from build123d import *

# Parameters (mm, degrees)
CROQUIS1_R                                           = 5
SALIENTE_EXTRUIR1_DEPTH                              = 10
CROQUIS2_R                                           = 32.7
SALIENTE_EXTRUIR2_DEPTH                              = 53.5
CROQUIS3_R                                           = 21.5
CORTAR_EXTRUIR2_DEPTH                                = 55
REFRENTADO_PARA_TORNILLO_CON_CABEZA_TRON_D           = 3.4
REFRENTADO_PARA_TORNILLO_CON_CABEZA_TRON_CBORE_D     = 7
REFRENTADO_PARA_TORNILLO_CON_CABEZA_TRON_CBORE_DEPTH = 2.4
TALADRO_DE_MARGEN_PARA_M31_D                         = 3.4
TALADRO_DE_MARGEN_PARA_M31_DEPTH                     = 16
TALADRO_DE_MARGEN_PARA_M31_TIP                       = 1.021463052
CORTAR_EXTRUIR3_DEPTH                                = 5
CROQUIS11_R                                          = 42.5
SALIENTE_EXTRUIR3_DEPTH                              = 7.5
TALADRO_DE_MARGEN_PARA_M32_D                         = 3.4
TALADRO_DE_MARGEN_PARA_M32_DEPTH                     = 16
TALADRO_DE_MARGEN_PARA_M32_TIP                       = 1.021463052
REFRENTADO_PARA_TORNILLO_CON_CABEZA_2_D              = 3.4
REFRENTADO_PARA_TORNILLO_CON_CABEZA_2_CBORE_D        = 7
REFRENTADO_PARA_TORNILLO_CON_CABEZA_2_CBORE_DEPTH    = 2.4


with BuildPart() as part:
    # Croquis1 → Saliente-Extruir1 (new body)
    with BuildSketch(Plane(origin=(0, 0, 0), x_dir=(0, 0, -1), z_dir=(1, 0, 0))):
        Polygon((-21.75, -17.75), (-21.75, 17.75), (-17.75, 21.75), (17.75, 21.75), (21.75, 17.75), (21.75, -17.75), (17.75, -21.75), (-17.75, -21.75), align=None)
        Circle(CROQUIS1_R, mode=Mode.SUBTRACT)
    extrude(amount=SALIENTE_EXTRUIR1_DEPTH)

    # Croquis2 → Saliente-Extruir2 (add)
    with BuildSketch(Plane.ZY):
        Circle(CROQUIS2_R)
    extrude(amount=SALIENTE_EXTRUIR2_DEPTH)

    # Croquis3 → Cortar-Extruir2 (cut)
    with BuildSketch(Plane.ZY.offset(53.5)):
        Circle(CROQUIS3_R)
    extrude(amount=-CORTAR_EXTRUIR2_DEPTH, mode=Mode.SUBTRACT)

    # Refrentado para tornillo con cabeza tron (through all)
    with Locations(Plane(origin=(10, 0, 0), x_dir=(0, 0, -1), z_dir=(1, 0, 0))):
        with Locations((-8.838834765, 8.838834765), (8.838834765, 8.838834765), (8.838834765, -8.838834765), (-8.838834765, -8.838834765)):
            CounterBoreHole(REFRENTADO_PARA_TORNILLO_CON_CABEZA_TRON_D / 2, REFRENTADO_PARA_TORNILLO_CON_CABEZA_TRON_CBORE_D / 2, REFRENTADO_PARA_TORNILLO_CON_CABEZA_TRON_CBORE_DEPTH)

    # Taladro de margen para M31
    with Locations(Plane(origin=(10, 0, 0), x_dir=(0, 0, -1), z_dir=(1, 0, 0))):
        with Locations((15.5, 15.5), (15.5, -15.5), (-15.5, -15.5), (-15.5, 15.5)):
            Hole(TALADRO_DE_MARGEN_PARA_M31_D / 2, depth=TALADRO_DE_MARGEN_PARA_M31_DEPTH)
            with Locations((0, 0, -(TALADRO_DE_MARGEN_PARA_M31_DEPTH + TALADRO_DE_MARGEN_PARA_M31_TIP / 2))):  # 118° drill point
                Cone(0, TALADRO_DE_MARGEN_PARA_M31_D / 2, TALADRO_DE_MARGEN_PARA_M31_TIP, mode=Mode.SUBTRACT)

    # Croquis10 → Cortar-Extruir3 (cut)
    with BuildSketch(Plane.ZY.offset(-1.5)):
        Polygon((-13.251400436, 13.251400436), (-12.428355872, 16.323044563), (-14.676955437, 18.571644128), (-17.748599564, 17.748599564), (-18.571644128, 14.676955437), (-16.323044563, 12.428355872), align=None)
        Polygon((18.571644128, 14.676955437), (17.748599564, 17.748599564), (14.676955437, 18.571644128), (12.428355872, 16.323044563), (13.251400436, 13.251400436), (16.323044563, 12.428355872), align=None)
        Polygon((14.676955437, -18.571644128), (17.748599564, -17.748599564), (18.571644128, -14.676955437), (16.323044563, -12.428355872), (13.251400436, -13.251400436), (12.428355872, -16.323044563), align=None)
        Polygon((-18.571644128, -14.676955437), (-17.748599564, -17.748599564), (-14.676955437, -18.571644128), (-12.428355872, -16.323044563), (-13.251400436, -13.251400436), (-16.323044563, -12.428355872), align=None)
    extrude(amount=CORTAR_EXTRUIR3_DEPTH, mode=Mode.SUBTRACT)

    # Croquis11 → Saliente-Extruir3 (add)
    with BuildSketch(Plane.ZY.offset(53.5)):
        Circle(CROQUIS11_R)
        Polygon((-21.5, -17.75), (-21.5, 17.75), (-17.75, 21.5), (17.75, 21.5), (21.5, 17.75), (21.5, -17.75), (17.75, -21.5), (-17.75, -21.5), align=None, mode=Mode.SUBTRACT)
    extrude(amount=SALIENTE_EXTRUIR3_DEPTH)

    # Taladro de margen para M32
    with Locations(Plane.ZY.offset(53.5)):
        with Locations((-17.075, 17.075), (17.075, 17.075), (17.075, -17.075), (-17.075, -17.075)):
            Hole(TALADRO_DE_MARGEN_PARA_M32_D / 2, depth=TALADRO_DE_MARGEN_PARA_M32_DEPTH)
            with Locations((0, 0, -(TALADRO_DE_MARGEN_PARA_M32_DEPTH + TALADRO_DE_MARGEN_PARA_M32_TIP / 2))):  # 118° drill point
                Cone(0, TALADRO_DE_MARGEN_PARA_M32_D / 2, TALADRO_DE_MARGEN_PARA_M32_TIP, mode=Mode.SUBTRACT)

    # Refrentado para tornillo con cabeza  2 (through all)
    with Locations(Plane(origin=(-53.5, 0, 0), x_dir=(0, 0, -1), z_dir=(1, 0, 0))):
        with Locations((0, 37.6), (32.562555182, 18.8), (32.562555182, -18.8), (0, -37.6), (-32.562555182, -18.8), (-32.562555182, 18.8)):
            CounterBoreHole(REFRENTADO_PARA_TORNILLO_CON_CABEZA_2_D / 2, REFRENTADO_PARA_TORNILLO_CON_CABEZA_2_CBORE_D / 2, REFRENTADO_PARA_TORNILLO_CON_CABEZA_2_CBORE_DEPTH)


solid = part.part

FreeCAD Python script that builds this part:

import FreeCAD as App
import Part
import Sketcher
Q = App.Units.Quantity


def add_polygon(sketch, points):
    """Adds a closed chain of lines whose ends are joined by coincident constraints."""
    first, n = sketch.GeometryCount, len(points)
    for a, b in zip(points, points[1:] + points[:1]):
        sketch.addGeometry(Part.LineSegment(App.Vector(*a, 0), App.Vector(*b, 0)), False)
    for i in range(n):
        sketch.addConstraint(Sketcher.Constraint("Coincident", first + i, 2, first + (i + 1) % n, 1))

doc = App.newDocument("Part")
body = doc.addObject("PartDesign::Body", "Body")

sketch1 = doc.addObject("Sketcher::SketchObject", "Sketch")
body.addObject(sketch1)
sketch1.AttachmentSupport = (doc.YZ_Plane, [""])
sketch1.MapMode = "FlatFace"
add_polygon(sketch1, [(17.75, 21.75), (-17.75, 21.75), (-21.75, 17.75), (-21.75, -17.75), (-17.75, -21.75), (17.75, -21.75), (21.75, -17.75), (21.75, 17.75)])
sketch1.addGeometry(Part.Circle(App.Vector(0, 0, 0), App.Vector(0, 0, 1), 5), False)
sketch1.addConstraint([
    Sketcher.Constraint("Horizontal", 0),
    Sketcher.Constraint("Vertical", 2),
    Sketcher.Constraint("Horizontal", 4),
    Sketcher.Constraint("Vertical", 6),
    Sketcher.Constraint("Coincident", 8, 3, -1, 1),
    Sketcher.Constraint("Symmetric", 0, 2, 4, 2, -1, 1),
    Sketcher.Constraint("Symmetric", 1, 2, 5, 2, -1, 1),
    Sketcher.Constraint("Perpendicular", 1, 3),
    Sketcher.Constraint("Perpendicular", 5, 7),
    Sketcher.Constraint("Horizontal", 2, 2, 5, 2),
    Sketcher.Constraint("Horizontal", 1, 2, 6, 2),
    Sketcher.Constraint("Vertical", 0, 2, 3, 2),
    Sketcher.Constraint("Equal", 4, 2),
    Sketcher.Constraint("Diameter", 8, Q("10 mm")),
    Sketcher.Constraint("DistanceX", 0, 2, 0, 1, Q("35.5 mm")),
    Sketcher.Constraint("DistanceX", 1, 2, 0, 2, Q("4 mm")),
])
pad1 = doc.addObject("PartDesign::Pad", "Pad")
body.addObject(pad1)
pad1.Profile = sketch1
pad1.Length = 10

sketch2 = doc.addObject("Sketcher::SketchObject", "Sketch001")
body.addObject(sketch2)
sketch2.AttachmentSupport = (doc.YZ_Plane, [""])
sketch2.MapMode = "FlatFace"
sketch2.addGeometry(Part.Circle(App.Vector(0, 0, 0), App.Vector(0, 0, 1), 32.7), False)
sketch2.addConstraint([
    Sketcher.Constraint("Coincident", 0, 3, -1, 1),
    Sketcher.Constraint("Diameter", 0, Q("65.4 mm")),
])
pad2 = doc.addObject("PartDesign::Pad", "Pad001")
body.addObject(pad2)
pad2.Profile = sketch2
pad2.Length = 53.5
pad2.Reversed = True

sketch3 = doc.addObject("Sketcher::SketchObject", "Sketch002")
body.addObject(sketch3)
sketch3.AttachmentSupport = (doc.YZ_Plane, [""])
sketch3.MapMode = "FlatFace"
sketch3.AttachmentOffset = App.Placement(App.Vector(0, 0, -53.5), App.Rotation())
sketch3.addGeometry(Part.Circle(App.Vector(0, 0, 0), App.Vector(0, 0, 1), 21.5), False)
sketch3.addConstraint([
    Sketcher.Constraint("Coincident", 0, 3, -1, 1),
    Sketcher.Constraint("Diameter", 0, Q("43 mm")),
])
pocket1 = doc.addObject("PartDesign::Pocket", "Pocket")
body.addObject(pocket1)
pocket1.Profile = sketch3
pocket1.Length = 55
pocket1.Reversed = True

sketch4 = doc.addObject("Sketcher::SketchObject", "Sketch003")
body.addObject(sketch4)
sketch4.AttachmentSupport = (doc.YZ_Plane, [""])
sketch4.MapMode = "FlatFace"
sketch4.AttachmentOffset = App.Placement(App.Vector(0, 0, 10), App.Rotation())
sketch4.addGeometry([
    Part.Circle(App.Vector(8.838835, 8.838835, 0), App.Vector(0, 0, 1), 1.7),
    Part.Circle(App.Vector(8.838835, -8.838835, 0), App.Vector(0, 0, 1), 1.7),
    Part.Circle(App.Vector(-8.838835, -8.838835, 0), App.Vector(0, 0, 1), 1.7),
    Part.Circle(App.Vector(-8.838835, 8.838835, 0), App.Vector(0, 0, 1), 1.7),
], False)
sketch4.addConstraint([
    Sketcher.Constraint("Equal", 0, 1),
    Sketcher.Constraint("Equal", 1, 2),
    Sketcher.Constraint("Equal", 2, 3),
    Sketcher.Constraint("Symmetric", 0, 3, 2, 3, -1, 1),
    Sketcher.Constraint("Symmetric", 1, 3, 3, 3, -1, 1),
    Sketcher.Constraint("Symmetric", 1, 3, 2, 3, -2),
    Sketcher.Constraint("Diameter", 0, Q("3.4 mm")),
    Sketcher.Constraint("DistanceY", 1, 3, 0, 3, Q("17.67767 mm")),
    Sketcher.Constraint("DistanceX", 2, 3, 1, 3, Q("17.67767 mm")),
])
doc.recompute()
hole = doc.addObject("PartDesign::Hole", "Hole")
body.addObject(hole)
hole.Profile = sketch4
hole.ThreadType = "None"
hole.Diameter = 3.4
hole.DepthType = "ThroughAll"
hole.HoleCutType = "Counterbore"
hole.HoleCutDiameter = 7
hole.HoleCutDepth = 2.4

sketch5 = doc.addObject("Sketcher::SketchObject", "Sketch004")
body.addObject(sketch5)
sketch5.AttachmentSupport = (doc.YZ_Plane, [""])
sketch5.MapMode = "FlatFace"
sketch5.AttachmentOffset = App.Placement(App.Vector(0, 0, 10), App.Rotation())
sketch5.addGeometry([
    Part.Circle(App.Vector(15.5, -15.5, 0), App.Vector(0, 0, 1), 1.7),
    Part.Circle(App.Vector(-15.5, -15.5, 0), App.Vector(0, 0, 1), 1.7),
    Part.Circle(App.Vector(-15.5, 15.5, 0), App.Vector(0, 0, 1), 1.7),
    Part.Circle(App.Vector(15.5, 15.5, 0), App.Vector(0, 0, 1), 1.7),
], False)
sketch5.addConstraint([
    Sketcher.Constraint("Equal", 0, 1),
    Sketcher.Constraint("Equal", 1, 2),
    Sketcher.Constraint("Equal", 2, 3),
    Sketcher.Constraint("Symmetric", 0, 3, 2, 3, -1, 1),
    Sketcher.Constraint("Symmetric", 1, 3, 3, 3, -1, 1),
    Sketcher.Constraint("Symmetric", 0, 3, 1, 3, -2),
    Sketcher.Constraint("Diameter", 0, Q("3.4 mm")),
    Sketcher.Constraint("DistanceX", 1, 3, 0, 3, Q("31 mm")),
    Sketcher.Constraint("DistanceY", 1, 3, 2, 3, Q("31 mm")),
])
doc.recompute()
hole2 = doc.addObject("PartDesign::Hole", "Hole001")
body.addObject(hole2)
hole2.Profile = sketch5
hole2.ThreadType = "None"
hole2.Diameter = 3.4
hole2.DepthType = "Dimension"
hole2.Depth = 16
hole2.DrillPoint = "Angled"
hole2.DrillPointAngle = 118

sketch6 = doc.addObject("Sketcher::SketchObject", "Sketch005")
body.addObject(sketch6)
sketch6.AttachmentSupport = (doc.YZ_Plane, [""])
sketch6.MapMode = "FlatFace"
sketch6.AttachmentOffset = App.Placement(App.Vector(0, 0, 1.5), App.Rotation())
add_polygon(sketch6, [(13.2514, -13.2514), (16.323045, -12.428356), (18.571644, -14.676955), (17.7486, -17.7486), (14.676955, -18.571644), (12.428356, -16.323045)])
add_polygon(sketch6, [(14.676955, 18.571644), (17.7486, 17.7486), (18.571644, 14.676955), (16.323045, 12.428356), (13.2514, 13.2514), (12.428356, 16.323045)])
add_polygon(sketch6, [(-18.571644, 14.676955), (-17.7486, 17.7486), (-14.676955, 18.571644), (-12.428356, 16.323045), (-13.2514, 13.2514), (-16.323045, 12.428356)])
add_polygon(sketch6, [(-14.676955, -18.571644), (-17.7486, -17.7486), (-18.571644, -14.676955), (-16.323045, -12.428356), (-13.2514, -13.2514), (-12.428356, -16.323045)])
sketch6.addConstraint([
    Sketcher.Constraint("Symmetric", 2, 2, 12, 2, -1, 1),
    Sketcher.Constraint("Symmetric", 3, 2, 13, 2, -1, 1),
    Sketcher.Constraint("Symmetric", 4, 2, 14, 2, -1, 1),
    Sketcher.Constraint("Symmetric", 5, 2, 15, 2, -1, 1),
    Sketcher.Constraint("Symmetric", 0, 2, 16, 2, -1, 1),
    Sketcher.Constraint("Symmetric", 1, 2, 17, 2, -1, 1),
    Sketcher.Constraint("Symmetric", 6, 2, 18, 2, -1, 1),
    Sketcher.Constraint("Symmetric", 7, 2, 19, 2, -1, 1),
    Sketcher.Constraint("Symmetric", 8, 2, 20, 2, -1, 1),
    Sketcher.Constraint("Symmetric", 9, 2, 21, 2, -1, 1),
    Sketcher.Constraint("Symmetric", 10, 2, 22, 2, -1, 1),
    Sketcher.Constraint("Symmetric", 11, 2, 23, 2, -1, 1),
    Sketcher.Constraint("Symmetric", 6, 2, 12, 2, -2),
    Sketcher.Constraint("Symmetric", 11, 2, 13, 2, -2),
    Sketcher.Constraint("Symmetric", 10, 2, 14, 2, -2),
    Sketcher.Constraint("Symmetric", 9, 2, 15, 2, -2),
    Sketcher.Constraint("Symmetric", 8, 2, 16, 2, -2),
    Sketcher.Constraint("Symmetric", 7, 2, 17, 2, -2),
    Sketcher.Constraint("Parallel", 0, 3),
    Sketcher.Constraint("Parallel", 1, 4),
    Sketcher.Constraint("Parallel", 2, 5),
    Sketcher.Constraint("Perpendicular", 5, 6),
    Sketcher.Constraint("Perpendicular", 4, 8),
    Sketcher.Constraint("Equal", 0, 1),
    Sketcher.Constraint("Equal", 1, 2),
    Sketcher.Constraint("Equal", 2, 3),
    Sketcher.Constraint("Angle", 0, Q("15 deg")),
    Sketcher.Constraint("DistanceY", 5, 2, 6, 2, Q("31 mm")),
    Sketcher.Constraint("DistanceX", 12, 2, 9, 2, Q("31 mm")),
    Sketcher.Constraint("Distance", 0, Q("3.18 mm")),
])
pocket2 = doc.addObject("PartDesign::Pocket", "Pocket001")
body.addObject(pocket2)
pocket2.Profile = sketch6
pocket2.Length = 5

sketch7 = doc.addObject("Sketcher::SketchObject", "Sketch006")
body.addObject(sketch7)
sketch7.AttachmentSupport = (doc.YZ_Plane, [""])
sketch7.MapMode = "FlatFace"
sketch7.AttachmentOffset = App.Placement(App.Vector(0, 0, -53.5), App.Rotation())
sketch7.addGeometry(Part.Circle(App.Vector(0, 0, 0), App.Vector(0, 0, 1), 42.5), False)
add_polygon(sketch7, [(-21.5, -17.75), (-17.75, -21.5), (17.75, -21.5), (21.5, -17.75), (21.5, 17.75), (17.75, 21.5), (-17.75, 21.5), (-21.5, 17.75)])
sketch7.addConstraint([
    Sketcher.Constraint("Horizontal", 2),
    Sketcher.Constraint("Vertical", 4),
    Sketcher.Constraint("Horizontal", 6),
    Sketcher.Constraint("Vertical", 8),
    Sketcher.Constraint("Coincident", 0, 3, -1, 1),
    Sketcher.Constraint("Symmetric", 1, 2, 5, 2, -1, 1),
    Sketcher.Constraint("Symmetric", 3, 2, 7, 2, -1, 1),
    Sketcher.Constraint("Perpendicular", 1, 3),
    Sketcher.Constraint("Perpendicular", 3, 5),
    Sketcher.Constraint("Perpendicular", 5, 7),
    Sketcher.Constraint("Horizontal", 4, 2, 7, 2),
    Sketcher.Constraint("Vertical", 2, 2, 5, 2),
    Sketcher.Constraint("Equal", 6, 4),
    Sketcher.Constraint("Diameter", 0, Q("85 mm")),
    Sketcher.Constraint("DistanceX", 2, 1, 2, 2, Q("35.5 mm")),
    Sketcher.Constraint("DistanceY", 2, 2, 5, 2, Q("43 mm")),
])
pad3 = doc.addObject("PartDesign::Pad", "Pad002")
body.addObject(pad3)
pad3.Profile = sketch7
pad3.Length = 7.5
pad3.Reversed = True

sketch8 = doc.addObject("Sketcher::SketchObject", "Sketch007")
body.addObject(sketch8)
sketch8.AttachmentSupport = (doc.YZ_Plane, [""])
sketch8.MapMode = "FlatFace"
sketch8.AttachmentOffset = App.Placement(App.Vector(0, 0, -53.5), App.Rotation())
sketch8.addGeometry([
    Part.Circle(App.Vector(17.075, -17.075, 0), App.Vector(0, 0, 1), 1.7),
    Part.Circle(App.Vector(17.075, 17.075, 0), App.Vector(0, 0, 1), 1.7),
    Part.Circle(App.Vector(-17.075, 17.075, 0), App.Vector(0, 0, 1), 1.7),
    Part.Circle(App.Vector(-17.075, -17.075, 0), App.Vector(0, 0, 1), 1.7),
], False)
sketch8.addConstraint([
    Sketcher.Constraint("Equal", 0, 1),
    Sketcher.Constraint("Equal", 1, 2),
    Sketcher.Constraint("Equal", 2, 3),
    Sketcher.Constraint("Symmetric", 0, 3, 2, 3, -1, 1),
    Sketcher.Constraint("Symmetric", 1, 3, 3, 3, -1, 1),
    Sketcher.Constraint("Symmetric", 1, 3, 2, 3, -2),
    Sketcher.Constraint("Diameter", 0, Q("3.4 mm")),
    Sketcher.Constraint("DistanceY", 0, 3, 1, 3, Q("34.15 mm")),
    Sketcher.Constraint("DistanceX", 2, 3, 1, 3, Q("34.15 mm")),
])
doc.recompute()
hole3 = doc.addObject("PartDesign::Hole", "Hole002")
body.addObject(hole3)
hole3.Profile = sketch8
hole3.ThreadType = "None"
hole3.Diameter = 3.4
hole3.DepthType = "Dimension"
hole3.Depth = 16
hole3.DrillPoint = "Angled"
hole3.DrillPointAngle = 118
hole3.Reversed = True

sketch9 = doc.addObject("Sketcher::SketchObject", "Sketch008")
body.addObject(sketch9)
sketch9.AttachmentSupport = (doc.YZ_Plane, [""])
sketch9.MapMode = "FlatFace"
sketch9.AttachmentOffset = App.Placement(App.Vector(0, 0, -53.5), App.Rotation())
sketch9.addGeometry([
    Part.Circle(App.Vector(37.6, 0, 0), App.Vector(0, 0, 1), 1.7),
    Part.Circle(App.Vector(18.8, -32.562555, 0), App.Vector(0, 0, 1), 1.7),
    Part.Circle(App.Vector(-18.8, -32.562555, 0), App.Vector(0, 0, 1), 1.7),
    Part.Circle(App.Vector(-37.6, 0, 0), App.Vector(0, 0, 1), 1.7),
    Part.Circle(App.Vector(-18.8, 32.562555, 0), App.Vector(0, 0, 1), 1.7),
    Part.Circle(App.Vector(18.8, 32.562555, 0), App.Vector(0, 0, 1), 1.7),
], False)
sketch9.addConstraint([
    Sketcher.Constraint("Equal", 0, 1),
    Sketcher.Constraint("Equal", 1, 2),
    Sketcher.Constraint("Equal", 2, 3),
    Sketcher.Constraint("Equal", 3, 4),
    Sketcher.Constraint("Equal", 4, 5),
    Sketcher.Constraint("Symmetric", 0, 3, 3, 3, -1, 1),
    Sketcher.Constraint("Symmetric", 1, 3, 4, 3, -1, 1),
    Sketcher.Constraint("Symmetric", 2, 3, 5, 3, -1, 1),
    Sketcher.Constraint("Symmetric", 1, 3, 2, 3, -2),
    Sketcher.Constraint("PointOnObject", 0, 3, -1),
    Sketcher.Constraint("Diameter", 0, Q("3.4 mm")),
    Sketcher.Constraint("DistanceX", -1, 1, 0, 3, Q("37.6 mm")),
    Sketcher.Constraint("DistanceX", -1, 1, 1, 3, Q("18.8 mm")),
    Sketcher.Constraint("DistanceY", 2, 3, 4, 3, Q("65.12511 mm")),
])
doc.recompute()
hole4 = doc.addObject("PartDesign::Hole", "Hole003")
body.addObject(hole4)
hole4.Profile = sketch9
hole4.ThreadType = "None"
hole4.Diameter = 3.4
hole4.DepthType = "ThroughAll"
hole4.HoleCutType = "Counterbore"
hole4.HoleCutDiameter = 7
hole4.HoleCutDepth = 2.4

doc.recompute()
